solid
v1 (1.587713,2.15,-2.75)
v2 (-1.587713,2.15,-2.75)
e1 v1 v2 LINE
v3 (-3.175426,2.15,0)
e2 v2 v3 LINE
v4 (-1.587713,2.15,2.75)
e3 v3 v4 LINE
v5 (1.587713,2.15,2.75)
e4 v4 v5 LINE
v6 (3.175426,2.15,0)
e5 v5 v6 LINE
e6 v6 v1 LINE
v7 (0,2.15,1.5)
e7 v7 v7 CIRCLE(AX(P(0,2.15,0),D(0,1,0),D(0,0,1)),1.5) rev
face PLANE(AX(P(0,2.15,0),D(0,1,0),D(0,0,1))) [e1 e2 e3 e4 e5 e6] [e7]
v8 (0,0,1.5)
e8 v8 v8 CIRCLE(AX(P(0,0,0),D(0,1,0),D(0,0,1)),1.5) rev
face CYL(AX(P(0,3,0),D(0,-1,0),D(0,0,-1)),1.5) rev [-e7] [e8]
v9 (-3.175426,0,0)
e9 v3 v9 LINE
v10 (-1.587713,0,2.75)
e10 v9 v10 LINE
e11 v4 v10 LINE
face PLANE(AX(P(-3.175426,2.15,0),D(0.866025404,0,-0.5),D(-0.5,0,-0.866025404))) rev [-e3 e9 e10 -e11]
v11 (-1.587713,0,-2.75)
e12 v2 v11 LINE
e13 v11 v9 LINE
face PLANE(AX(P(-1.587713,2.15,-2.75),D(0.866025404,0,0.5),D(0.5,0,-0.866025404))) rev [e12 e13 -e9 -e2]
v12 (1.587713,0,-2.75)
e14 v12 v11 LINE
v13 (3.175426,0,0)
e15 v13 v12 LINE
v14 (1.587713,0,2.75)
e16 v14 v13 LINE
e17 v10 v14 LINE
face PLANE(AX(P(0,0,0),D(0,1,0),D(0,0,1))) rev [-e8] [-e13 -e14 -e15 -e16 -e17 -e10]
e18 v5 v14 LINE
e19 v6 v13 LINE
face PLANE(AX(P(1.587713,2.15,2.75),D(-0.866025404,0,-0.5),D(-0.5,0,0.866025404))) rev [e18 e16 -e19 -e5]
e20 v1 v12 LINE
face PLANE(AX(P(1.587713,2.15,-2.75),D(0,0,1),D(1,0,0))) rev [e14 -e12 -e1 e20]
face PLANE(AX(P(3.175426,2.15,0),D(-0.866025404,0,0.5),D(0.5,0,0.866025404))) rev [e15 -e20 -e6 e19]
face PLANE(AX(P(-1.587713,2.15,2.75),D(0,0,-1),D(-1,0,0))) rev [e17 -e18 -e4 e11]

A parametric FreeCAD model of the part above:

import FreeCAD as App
import Part
import Sketcher
Q = App.Units.Quantity

doc = App.newDocument("Part")
body = doc.addObject("PartDesign::Body", "Body")

sketch1 = doc.addObject("Sketcher::SketchObject", "Sketch")
body.addObject(sketch1)
sketch1.AttachmentSupport = (doc.XZ_Plane, [""])
sketch1.MapMode = "FlatFace"
sketch1.addGeometry([
    Part.LineSegment(App.Vector(3.2, 0, 0), App.Vector(1.6, -2.8, 0)),
    Part.LineSegment(App.Vector(1.6, -2.8, 0), App.Vector(-1.6, -2.8, 0)),
    Part.LineSegment(App.Vector(-1.6, -2.8, 0), App.Vector(-3.2, 0, 0)),
    Part.LineSegment(App.Vector(-3.2, 0, 0), App.Vector(-1.6, 2.8, 0)),
    Part.LineSegment(App.Vector(-1.6, 2.8, 0), App.Vector(1.6, 2.8, 0)),
    Part.LineSegment(App.Vector(1.6, 2.8, 0), App.Vector(3.2, 0, 0)),
], False)
sketch1.addConstraint([
    Sketcher.Constraint("Coincident", 0, 2, 1, 1),
    Sketcher.Constraint("Coincident", 1, 2, 2, 1),
    Sketcher.Constraint("Coincident", 2, 2, 3, 1),
    Sketcher.Constraint("Coincident", 3, 2, 4, 1),
    Sketcher.Constraint("Coincident", 4, 2, 5, 1),
    Sketcher.Constraint("Coincident", 5, 2, 0, 1),
    Sketcher.Constraint("Horizontal", 1),
    Sketcher.Constraint("Horizontal", 4),
    Sketcher.Constraint("Symmetric", 0, 2, 3, 2, -1, 1),
    Sketcher.Constraint("Symmetric", 2, 2, 5, 2, -1, 1),
    Sketcher.Constraint("PointOnObject", 2, 2, -1),
    Sketcher.Constraint("Parallel", 2, 5),
    Sketcher.Constraint("Vertical", 1, 2, 3, 2),
    Sketcher.Constraint("Angle", 0, Q("-120 deg")),
    Sketcher.Constraint("DistanceY", 1, 2, 3, 2, Q("5.5 mm")),
    Sketcher.Constraint("DistanceX", 1, 2, 1, 1, Q("3.175426 mm")),
])
pad1 = doc.addObject("PartDesign::Pad", "Pad")
body.addObject(pad1)
pad1.Profile = sketch1
pad1.Length = 2.15
pad1.Reversed = True

sketch2 = doc.addObject("Sketcher::SketchObject", "Sketch001")
body.addObject(sketch2)
sketch2.AttachmentSupport = (doc.XZ_Plane, [""])
sketch2.MapMode = "FlatFace"
sketch2.addGeometry(Part.Circle(App.Vector(0, 0, 0), App.Vector(0, 0, 1), 1.5), False)
sketch2.addConstraint([
    Sketcher.Constraint("Coincident", 0, 3, -1, 1),
    Sketcher.Constraint("Diameter", 0, Q("3 mm")),
])
pocket1 = doc.addObject("PartDesign::Pocket", "Pocket")
body.addObject(pocket1)
pocket1.Profile = sketch2
pocket1.Type = "ThroughAll"
pocket1.Midplane = True

doc.recompute()
